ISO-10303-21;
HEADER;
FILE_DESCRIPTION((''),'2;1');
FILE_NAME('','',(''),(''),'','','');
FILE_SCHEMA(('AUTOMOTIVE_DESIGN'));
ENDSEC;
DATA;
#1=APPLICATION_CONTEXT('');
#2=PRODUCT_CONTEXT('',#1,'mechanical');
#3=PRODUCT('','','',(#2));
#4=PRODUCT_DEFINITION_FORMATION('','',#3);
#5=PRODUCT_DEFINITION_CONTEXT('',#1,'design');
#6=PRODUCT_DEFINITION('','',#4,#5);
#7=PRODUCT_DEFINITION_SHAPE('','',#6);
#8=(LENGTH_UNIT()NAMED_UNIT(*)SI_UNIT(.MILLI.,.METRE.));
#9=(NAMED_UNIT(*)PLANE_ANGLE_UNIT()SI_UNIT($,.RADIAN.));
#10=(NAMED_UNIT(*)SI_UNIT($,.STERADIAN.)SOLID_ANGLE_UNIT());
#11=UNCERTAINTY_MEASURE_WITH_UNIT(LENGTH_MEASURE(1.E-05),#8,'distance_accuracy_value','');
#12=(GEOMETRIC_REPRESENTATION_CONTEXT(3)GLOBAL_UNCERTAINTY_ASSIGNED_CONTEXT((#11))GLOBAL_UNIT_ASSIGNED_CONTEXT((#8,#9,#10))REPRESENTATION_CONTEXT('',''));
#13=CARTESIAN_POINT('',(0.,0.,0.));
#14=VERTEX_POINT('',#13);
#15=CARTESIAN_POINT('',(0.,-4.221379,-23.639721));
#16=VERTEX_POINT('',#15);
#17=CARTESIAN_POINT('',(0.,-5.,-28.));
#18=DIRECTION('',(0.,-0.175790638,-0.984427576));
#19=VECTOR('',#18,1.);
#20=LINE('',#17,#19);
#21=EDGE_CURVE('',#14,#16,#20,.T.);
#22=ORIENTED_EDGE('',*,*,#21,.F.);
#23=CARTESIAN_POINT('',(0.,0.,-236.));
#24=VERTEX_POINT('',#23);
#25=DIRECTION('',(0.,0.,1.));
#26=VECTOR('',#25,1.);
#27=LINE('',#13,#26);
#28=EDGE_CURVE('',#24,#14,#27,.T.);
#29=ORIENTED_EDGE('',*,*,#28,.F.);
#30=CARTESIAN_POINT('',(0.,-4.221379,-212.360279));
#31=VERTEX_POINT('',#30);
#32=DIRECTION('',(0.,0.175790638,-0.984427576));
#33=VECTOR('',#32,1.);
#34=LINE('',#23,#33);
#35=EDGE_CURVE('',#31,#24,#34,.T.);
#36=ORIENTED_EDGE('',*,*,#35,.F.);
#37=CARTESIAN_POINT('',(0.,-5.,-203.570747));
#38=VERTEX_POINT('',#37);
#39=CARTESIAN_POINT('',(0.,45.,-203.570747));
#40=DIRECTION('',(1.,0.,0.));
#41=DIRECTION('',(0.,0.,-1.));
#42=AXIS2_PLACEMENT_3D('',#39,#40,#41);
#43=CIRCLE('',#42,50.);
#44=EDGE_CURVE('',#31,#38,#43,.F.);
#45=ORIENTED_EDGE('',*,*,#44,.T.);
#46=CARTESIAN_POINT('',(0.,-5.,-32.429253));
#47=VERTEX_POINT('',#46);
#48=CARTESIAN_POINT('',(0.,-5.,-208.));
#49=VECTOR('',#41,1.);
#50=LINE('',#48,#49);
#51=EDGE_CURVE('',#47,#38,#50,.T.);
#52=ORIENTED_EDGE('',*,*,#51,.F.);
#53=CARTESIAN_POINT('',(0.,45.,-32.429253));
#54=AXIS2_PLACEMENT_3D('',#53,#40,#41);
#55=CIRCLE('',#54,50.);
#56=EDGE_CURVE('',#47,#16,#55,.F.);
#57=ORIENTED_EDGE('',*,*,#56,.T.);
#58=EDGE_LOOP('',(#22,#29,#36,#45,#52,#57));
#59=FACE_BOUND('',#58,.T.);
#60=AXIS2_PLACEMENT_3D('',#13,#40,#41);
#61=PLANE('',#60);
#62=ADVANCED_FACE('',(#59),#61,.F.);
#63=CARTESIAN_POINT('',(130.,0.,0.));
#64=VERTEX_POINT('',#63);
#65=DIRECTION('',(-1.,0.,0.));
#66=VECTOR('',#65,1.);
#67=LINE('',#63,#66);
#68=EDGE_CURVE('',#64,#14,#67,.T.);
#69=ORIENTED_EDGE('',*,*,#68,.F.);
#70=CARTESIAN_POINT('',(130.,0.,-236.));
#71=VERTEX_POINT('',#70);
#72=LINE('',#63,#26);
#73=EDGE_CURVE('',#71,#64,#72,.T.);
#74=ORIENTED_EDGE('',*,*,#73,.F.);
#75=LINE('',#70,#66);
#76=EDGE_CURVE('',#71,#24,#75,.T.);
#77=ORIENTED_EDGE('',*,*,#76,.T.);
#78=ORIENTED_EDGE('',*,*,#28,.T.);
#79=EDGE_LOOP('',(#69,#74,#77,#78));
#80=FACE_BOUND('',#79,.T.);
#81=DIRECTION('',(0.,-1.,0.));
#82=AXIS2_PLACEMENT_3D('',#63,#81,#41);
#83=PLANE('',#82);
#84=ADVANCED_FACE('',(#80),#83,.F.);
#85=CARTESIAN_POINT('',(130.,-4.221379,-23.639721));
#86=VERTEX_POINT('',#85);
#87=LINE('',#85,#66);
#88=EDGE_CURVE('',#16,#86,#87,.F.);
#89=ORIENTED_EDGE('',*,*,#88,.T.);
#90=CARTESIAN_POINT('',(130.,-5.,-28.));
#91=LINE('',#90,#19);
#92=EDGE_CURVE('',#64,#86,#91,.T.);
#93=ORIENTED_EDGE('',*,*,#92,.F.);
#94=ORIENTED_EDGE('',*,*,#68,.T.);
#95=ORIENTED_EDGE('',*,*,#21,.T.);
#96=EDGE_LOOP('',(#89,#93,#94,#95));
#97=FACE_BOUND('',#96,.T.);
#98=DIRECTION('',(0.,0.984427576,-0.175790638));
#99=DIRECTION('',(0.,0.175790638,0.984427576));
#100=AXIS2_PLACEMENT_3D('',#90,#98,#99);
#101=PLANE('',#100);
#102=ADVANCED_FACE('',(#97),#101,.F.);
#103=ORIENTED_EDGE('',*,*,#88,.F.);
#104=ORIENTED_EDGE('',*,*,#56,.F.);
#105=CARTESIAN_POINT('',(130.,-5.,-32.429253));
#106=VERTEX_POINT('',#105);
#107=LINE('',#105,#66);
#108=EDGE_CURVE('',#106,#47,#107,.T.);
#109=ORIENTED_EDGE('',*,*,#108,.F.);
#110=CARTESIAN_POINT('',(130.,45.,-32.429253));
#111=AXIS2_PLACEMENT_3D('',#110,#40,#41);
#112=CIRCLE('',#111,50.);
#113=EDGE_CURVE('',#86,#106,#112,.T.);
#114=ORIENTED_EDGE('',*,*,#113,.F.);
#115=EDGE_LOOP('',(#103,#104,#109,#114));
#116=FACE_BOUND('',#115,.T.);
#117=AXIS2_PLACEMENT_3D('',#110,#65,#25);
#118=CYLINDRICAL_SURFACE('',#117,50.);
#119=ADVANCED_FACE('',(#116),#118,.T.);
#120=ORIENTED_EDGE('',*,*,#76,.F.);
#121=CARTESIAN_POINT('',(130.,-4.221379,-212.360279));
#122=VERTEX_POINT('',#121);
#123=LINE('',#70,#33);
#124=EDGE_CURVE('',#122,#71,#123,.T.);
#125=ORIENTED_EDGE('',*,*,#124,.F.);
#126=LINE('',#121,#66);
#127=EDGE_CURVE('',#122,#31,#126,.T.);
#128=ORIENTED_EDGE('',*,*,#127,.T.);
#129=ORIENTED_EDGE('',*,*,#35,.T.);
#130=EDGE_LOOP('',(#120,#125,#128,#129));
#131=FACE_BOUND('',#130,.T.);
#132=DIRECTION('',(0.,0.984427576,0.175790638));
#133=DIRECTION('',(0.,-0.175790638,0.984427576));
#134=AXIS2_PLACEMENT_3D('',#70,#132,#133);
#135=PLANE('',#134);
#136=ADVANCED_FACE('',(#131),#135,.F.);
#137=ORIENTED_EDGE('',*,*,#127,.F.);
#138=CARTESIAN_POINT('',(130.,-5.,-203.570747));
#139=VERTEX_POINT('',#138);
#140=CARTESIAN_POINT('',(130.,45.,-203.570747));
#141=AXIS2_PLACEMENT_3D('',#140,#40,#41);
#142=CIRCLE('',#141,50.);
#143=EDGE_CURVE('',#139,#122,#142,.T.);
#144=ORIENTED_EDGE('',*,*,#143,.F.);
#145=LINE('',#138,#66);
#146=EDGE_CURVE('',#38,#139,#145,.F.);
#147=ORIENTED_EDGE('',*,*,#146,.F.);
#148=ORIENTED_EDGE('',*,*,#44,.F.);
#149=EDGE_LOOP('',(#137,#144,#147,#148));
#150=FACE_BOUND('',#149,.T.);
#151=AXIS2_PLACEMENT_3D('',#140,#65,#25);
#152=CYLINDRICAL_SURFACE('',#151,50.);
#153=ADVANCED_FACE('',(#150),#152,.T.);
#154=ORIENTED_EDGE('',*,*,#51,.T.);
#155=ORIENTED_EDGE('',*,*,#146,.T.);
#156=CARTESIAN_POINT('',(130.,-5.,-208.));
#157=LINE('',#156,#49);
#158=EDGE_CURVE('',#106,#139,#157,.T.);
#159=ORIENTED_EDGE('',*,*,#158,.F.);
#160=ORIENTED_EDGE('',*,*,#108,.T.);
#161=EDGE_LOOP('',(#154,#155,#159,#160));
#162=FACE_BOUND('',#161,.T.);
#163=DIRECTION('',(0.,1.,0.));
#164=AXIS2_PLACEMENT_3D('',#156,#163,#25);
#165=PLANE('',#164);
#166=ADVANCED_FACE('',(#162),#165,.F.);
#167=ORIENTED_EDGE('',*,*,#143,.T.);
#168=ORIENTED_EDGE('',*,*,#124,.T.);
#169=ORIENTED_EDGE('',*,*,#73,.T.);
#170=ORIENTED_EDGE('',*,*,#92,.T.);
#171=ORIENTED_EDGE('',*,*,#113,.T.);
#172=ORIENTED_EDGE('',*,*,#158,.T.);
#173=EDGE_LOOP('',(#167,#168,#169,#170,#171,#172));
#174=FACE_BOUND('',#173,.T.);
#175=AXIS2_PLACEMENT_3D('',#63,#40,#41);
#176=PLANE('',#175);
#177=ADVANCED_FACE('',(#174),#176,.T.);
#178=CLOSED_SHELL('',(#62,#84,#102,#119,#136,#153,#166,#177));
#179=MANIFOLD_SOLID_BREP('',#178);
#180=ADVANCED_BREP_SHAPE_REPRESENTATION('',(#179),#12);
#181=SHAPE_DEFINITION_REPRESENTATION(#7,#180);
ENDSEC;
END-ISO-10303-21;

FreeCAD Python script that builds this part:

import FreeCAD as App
import Part
import Sketcher
from FreeCAD import Vector


def edges_at(feature, points):
    """Names of the edges that pass closest to the given points."""
    edges = feature.Shape.Edges
    near = lambda p: min(range(len(edges)), key=lambda i: edges[i].distToShape(Part.Vertex(*p))[0])
    return sorted({f"Edge{near(p) + 1}" for p in points})


def add_polygon(sketch, points):
    """Adds a closed chain of lines whose ends are joined by coincident constraints."""
    first, n = sketch.GeometryCount, len(points)
    for a, b in zip(points, points[1:] + points[:1]):
        sketch.addGeometry(Part.LineSegment(App.Vector(*a, 0), App.Vector(*b, 0)), False)
    for i in range(n):
        sketch.addConstraint(Sketcher.Constraint("Coincident", first + i, 2, first + (i + 1) % n, 1))

doc = App.newDocument("Part")
params = doc.addObject("Spreadsheet::Sheet", "Params")
for row, (alias, value) in enumerate([
    ("sketch1_height", "236 mm"),
    ("sketch1_height2", "180 mm"),
    ("pad1_length", "130 mm"),
    ("fillet_radius", "50 mm"),
], start=1):
    params.set(f"A{row}", alias)
    params.set(f"B{row}", "=" + value)
    params.setAlias(f"B{row}", alias)

body = doc.addObject("PartDesign::Body", "Body")

sketch1 = body.newObject("Sketcher::SketchObject", "Sketch")
sketch1.AttachmentSupport = (doc.getObject("YZ_Plane"), [""])
sketch1.MapMode = "FlatFace"
add_polygon(sketch1, [(0, -236), (0, 0), (-5, -28), (-5, -208)])
sketch1.addConstraint([
    Sketcher.Constraint("Vertical", 0),
    Sketcher.Constraint("Vertical", 2),
    Sketcher.Constraint("Coincident", 0, 2, -1, 1),
    Sketcher.Constraint("Equal", 1, 3),
    Sketcher.Constraint("DistanceY", 0, 1, 0, 2, 236.0),
    Sketcher.Constraint("DistanceY", 2, 2, 2, 1, 180.0),
    Sketcher.Constraint("DistanceX", 1, 2, -1, 1, 5.0),
])
sketch1.setExpression("Constraints[8]", "Params.sketch1_height")
sketch1.setExpression("Constraints[9]", "Params.sketch1_height2")
pad1 = body.newObject("PartDesign::Pad", "Pad")
pad1.Profile = sketch1
pad1.setExpression("Length", "Params.pad1_length")
doc.recompute()

fillet = body.newObject("PartDesign::Fillet", "Fillet")
fillet.Base = (pad1, edges_at(pad1, [(65, -5, -208), (65, -5, -28)]))
fillet.setExpression("Radius", "Params.fillet_radius")

doc.recompute()
